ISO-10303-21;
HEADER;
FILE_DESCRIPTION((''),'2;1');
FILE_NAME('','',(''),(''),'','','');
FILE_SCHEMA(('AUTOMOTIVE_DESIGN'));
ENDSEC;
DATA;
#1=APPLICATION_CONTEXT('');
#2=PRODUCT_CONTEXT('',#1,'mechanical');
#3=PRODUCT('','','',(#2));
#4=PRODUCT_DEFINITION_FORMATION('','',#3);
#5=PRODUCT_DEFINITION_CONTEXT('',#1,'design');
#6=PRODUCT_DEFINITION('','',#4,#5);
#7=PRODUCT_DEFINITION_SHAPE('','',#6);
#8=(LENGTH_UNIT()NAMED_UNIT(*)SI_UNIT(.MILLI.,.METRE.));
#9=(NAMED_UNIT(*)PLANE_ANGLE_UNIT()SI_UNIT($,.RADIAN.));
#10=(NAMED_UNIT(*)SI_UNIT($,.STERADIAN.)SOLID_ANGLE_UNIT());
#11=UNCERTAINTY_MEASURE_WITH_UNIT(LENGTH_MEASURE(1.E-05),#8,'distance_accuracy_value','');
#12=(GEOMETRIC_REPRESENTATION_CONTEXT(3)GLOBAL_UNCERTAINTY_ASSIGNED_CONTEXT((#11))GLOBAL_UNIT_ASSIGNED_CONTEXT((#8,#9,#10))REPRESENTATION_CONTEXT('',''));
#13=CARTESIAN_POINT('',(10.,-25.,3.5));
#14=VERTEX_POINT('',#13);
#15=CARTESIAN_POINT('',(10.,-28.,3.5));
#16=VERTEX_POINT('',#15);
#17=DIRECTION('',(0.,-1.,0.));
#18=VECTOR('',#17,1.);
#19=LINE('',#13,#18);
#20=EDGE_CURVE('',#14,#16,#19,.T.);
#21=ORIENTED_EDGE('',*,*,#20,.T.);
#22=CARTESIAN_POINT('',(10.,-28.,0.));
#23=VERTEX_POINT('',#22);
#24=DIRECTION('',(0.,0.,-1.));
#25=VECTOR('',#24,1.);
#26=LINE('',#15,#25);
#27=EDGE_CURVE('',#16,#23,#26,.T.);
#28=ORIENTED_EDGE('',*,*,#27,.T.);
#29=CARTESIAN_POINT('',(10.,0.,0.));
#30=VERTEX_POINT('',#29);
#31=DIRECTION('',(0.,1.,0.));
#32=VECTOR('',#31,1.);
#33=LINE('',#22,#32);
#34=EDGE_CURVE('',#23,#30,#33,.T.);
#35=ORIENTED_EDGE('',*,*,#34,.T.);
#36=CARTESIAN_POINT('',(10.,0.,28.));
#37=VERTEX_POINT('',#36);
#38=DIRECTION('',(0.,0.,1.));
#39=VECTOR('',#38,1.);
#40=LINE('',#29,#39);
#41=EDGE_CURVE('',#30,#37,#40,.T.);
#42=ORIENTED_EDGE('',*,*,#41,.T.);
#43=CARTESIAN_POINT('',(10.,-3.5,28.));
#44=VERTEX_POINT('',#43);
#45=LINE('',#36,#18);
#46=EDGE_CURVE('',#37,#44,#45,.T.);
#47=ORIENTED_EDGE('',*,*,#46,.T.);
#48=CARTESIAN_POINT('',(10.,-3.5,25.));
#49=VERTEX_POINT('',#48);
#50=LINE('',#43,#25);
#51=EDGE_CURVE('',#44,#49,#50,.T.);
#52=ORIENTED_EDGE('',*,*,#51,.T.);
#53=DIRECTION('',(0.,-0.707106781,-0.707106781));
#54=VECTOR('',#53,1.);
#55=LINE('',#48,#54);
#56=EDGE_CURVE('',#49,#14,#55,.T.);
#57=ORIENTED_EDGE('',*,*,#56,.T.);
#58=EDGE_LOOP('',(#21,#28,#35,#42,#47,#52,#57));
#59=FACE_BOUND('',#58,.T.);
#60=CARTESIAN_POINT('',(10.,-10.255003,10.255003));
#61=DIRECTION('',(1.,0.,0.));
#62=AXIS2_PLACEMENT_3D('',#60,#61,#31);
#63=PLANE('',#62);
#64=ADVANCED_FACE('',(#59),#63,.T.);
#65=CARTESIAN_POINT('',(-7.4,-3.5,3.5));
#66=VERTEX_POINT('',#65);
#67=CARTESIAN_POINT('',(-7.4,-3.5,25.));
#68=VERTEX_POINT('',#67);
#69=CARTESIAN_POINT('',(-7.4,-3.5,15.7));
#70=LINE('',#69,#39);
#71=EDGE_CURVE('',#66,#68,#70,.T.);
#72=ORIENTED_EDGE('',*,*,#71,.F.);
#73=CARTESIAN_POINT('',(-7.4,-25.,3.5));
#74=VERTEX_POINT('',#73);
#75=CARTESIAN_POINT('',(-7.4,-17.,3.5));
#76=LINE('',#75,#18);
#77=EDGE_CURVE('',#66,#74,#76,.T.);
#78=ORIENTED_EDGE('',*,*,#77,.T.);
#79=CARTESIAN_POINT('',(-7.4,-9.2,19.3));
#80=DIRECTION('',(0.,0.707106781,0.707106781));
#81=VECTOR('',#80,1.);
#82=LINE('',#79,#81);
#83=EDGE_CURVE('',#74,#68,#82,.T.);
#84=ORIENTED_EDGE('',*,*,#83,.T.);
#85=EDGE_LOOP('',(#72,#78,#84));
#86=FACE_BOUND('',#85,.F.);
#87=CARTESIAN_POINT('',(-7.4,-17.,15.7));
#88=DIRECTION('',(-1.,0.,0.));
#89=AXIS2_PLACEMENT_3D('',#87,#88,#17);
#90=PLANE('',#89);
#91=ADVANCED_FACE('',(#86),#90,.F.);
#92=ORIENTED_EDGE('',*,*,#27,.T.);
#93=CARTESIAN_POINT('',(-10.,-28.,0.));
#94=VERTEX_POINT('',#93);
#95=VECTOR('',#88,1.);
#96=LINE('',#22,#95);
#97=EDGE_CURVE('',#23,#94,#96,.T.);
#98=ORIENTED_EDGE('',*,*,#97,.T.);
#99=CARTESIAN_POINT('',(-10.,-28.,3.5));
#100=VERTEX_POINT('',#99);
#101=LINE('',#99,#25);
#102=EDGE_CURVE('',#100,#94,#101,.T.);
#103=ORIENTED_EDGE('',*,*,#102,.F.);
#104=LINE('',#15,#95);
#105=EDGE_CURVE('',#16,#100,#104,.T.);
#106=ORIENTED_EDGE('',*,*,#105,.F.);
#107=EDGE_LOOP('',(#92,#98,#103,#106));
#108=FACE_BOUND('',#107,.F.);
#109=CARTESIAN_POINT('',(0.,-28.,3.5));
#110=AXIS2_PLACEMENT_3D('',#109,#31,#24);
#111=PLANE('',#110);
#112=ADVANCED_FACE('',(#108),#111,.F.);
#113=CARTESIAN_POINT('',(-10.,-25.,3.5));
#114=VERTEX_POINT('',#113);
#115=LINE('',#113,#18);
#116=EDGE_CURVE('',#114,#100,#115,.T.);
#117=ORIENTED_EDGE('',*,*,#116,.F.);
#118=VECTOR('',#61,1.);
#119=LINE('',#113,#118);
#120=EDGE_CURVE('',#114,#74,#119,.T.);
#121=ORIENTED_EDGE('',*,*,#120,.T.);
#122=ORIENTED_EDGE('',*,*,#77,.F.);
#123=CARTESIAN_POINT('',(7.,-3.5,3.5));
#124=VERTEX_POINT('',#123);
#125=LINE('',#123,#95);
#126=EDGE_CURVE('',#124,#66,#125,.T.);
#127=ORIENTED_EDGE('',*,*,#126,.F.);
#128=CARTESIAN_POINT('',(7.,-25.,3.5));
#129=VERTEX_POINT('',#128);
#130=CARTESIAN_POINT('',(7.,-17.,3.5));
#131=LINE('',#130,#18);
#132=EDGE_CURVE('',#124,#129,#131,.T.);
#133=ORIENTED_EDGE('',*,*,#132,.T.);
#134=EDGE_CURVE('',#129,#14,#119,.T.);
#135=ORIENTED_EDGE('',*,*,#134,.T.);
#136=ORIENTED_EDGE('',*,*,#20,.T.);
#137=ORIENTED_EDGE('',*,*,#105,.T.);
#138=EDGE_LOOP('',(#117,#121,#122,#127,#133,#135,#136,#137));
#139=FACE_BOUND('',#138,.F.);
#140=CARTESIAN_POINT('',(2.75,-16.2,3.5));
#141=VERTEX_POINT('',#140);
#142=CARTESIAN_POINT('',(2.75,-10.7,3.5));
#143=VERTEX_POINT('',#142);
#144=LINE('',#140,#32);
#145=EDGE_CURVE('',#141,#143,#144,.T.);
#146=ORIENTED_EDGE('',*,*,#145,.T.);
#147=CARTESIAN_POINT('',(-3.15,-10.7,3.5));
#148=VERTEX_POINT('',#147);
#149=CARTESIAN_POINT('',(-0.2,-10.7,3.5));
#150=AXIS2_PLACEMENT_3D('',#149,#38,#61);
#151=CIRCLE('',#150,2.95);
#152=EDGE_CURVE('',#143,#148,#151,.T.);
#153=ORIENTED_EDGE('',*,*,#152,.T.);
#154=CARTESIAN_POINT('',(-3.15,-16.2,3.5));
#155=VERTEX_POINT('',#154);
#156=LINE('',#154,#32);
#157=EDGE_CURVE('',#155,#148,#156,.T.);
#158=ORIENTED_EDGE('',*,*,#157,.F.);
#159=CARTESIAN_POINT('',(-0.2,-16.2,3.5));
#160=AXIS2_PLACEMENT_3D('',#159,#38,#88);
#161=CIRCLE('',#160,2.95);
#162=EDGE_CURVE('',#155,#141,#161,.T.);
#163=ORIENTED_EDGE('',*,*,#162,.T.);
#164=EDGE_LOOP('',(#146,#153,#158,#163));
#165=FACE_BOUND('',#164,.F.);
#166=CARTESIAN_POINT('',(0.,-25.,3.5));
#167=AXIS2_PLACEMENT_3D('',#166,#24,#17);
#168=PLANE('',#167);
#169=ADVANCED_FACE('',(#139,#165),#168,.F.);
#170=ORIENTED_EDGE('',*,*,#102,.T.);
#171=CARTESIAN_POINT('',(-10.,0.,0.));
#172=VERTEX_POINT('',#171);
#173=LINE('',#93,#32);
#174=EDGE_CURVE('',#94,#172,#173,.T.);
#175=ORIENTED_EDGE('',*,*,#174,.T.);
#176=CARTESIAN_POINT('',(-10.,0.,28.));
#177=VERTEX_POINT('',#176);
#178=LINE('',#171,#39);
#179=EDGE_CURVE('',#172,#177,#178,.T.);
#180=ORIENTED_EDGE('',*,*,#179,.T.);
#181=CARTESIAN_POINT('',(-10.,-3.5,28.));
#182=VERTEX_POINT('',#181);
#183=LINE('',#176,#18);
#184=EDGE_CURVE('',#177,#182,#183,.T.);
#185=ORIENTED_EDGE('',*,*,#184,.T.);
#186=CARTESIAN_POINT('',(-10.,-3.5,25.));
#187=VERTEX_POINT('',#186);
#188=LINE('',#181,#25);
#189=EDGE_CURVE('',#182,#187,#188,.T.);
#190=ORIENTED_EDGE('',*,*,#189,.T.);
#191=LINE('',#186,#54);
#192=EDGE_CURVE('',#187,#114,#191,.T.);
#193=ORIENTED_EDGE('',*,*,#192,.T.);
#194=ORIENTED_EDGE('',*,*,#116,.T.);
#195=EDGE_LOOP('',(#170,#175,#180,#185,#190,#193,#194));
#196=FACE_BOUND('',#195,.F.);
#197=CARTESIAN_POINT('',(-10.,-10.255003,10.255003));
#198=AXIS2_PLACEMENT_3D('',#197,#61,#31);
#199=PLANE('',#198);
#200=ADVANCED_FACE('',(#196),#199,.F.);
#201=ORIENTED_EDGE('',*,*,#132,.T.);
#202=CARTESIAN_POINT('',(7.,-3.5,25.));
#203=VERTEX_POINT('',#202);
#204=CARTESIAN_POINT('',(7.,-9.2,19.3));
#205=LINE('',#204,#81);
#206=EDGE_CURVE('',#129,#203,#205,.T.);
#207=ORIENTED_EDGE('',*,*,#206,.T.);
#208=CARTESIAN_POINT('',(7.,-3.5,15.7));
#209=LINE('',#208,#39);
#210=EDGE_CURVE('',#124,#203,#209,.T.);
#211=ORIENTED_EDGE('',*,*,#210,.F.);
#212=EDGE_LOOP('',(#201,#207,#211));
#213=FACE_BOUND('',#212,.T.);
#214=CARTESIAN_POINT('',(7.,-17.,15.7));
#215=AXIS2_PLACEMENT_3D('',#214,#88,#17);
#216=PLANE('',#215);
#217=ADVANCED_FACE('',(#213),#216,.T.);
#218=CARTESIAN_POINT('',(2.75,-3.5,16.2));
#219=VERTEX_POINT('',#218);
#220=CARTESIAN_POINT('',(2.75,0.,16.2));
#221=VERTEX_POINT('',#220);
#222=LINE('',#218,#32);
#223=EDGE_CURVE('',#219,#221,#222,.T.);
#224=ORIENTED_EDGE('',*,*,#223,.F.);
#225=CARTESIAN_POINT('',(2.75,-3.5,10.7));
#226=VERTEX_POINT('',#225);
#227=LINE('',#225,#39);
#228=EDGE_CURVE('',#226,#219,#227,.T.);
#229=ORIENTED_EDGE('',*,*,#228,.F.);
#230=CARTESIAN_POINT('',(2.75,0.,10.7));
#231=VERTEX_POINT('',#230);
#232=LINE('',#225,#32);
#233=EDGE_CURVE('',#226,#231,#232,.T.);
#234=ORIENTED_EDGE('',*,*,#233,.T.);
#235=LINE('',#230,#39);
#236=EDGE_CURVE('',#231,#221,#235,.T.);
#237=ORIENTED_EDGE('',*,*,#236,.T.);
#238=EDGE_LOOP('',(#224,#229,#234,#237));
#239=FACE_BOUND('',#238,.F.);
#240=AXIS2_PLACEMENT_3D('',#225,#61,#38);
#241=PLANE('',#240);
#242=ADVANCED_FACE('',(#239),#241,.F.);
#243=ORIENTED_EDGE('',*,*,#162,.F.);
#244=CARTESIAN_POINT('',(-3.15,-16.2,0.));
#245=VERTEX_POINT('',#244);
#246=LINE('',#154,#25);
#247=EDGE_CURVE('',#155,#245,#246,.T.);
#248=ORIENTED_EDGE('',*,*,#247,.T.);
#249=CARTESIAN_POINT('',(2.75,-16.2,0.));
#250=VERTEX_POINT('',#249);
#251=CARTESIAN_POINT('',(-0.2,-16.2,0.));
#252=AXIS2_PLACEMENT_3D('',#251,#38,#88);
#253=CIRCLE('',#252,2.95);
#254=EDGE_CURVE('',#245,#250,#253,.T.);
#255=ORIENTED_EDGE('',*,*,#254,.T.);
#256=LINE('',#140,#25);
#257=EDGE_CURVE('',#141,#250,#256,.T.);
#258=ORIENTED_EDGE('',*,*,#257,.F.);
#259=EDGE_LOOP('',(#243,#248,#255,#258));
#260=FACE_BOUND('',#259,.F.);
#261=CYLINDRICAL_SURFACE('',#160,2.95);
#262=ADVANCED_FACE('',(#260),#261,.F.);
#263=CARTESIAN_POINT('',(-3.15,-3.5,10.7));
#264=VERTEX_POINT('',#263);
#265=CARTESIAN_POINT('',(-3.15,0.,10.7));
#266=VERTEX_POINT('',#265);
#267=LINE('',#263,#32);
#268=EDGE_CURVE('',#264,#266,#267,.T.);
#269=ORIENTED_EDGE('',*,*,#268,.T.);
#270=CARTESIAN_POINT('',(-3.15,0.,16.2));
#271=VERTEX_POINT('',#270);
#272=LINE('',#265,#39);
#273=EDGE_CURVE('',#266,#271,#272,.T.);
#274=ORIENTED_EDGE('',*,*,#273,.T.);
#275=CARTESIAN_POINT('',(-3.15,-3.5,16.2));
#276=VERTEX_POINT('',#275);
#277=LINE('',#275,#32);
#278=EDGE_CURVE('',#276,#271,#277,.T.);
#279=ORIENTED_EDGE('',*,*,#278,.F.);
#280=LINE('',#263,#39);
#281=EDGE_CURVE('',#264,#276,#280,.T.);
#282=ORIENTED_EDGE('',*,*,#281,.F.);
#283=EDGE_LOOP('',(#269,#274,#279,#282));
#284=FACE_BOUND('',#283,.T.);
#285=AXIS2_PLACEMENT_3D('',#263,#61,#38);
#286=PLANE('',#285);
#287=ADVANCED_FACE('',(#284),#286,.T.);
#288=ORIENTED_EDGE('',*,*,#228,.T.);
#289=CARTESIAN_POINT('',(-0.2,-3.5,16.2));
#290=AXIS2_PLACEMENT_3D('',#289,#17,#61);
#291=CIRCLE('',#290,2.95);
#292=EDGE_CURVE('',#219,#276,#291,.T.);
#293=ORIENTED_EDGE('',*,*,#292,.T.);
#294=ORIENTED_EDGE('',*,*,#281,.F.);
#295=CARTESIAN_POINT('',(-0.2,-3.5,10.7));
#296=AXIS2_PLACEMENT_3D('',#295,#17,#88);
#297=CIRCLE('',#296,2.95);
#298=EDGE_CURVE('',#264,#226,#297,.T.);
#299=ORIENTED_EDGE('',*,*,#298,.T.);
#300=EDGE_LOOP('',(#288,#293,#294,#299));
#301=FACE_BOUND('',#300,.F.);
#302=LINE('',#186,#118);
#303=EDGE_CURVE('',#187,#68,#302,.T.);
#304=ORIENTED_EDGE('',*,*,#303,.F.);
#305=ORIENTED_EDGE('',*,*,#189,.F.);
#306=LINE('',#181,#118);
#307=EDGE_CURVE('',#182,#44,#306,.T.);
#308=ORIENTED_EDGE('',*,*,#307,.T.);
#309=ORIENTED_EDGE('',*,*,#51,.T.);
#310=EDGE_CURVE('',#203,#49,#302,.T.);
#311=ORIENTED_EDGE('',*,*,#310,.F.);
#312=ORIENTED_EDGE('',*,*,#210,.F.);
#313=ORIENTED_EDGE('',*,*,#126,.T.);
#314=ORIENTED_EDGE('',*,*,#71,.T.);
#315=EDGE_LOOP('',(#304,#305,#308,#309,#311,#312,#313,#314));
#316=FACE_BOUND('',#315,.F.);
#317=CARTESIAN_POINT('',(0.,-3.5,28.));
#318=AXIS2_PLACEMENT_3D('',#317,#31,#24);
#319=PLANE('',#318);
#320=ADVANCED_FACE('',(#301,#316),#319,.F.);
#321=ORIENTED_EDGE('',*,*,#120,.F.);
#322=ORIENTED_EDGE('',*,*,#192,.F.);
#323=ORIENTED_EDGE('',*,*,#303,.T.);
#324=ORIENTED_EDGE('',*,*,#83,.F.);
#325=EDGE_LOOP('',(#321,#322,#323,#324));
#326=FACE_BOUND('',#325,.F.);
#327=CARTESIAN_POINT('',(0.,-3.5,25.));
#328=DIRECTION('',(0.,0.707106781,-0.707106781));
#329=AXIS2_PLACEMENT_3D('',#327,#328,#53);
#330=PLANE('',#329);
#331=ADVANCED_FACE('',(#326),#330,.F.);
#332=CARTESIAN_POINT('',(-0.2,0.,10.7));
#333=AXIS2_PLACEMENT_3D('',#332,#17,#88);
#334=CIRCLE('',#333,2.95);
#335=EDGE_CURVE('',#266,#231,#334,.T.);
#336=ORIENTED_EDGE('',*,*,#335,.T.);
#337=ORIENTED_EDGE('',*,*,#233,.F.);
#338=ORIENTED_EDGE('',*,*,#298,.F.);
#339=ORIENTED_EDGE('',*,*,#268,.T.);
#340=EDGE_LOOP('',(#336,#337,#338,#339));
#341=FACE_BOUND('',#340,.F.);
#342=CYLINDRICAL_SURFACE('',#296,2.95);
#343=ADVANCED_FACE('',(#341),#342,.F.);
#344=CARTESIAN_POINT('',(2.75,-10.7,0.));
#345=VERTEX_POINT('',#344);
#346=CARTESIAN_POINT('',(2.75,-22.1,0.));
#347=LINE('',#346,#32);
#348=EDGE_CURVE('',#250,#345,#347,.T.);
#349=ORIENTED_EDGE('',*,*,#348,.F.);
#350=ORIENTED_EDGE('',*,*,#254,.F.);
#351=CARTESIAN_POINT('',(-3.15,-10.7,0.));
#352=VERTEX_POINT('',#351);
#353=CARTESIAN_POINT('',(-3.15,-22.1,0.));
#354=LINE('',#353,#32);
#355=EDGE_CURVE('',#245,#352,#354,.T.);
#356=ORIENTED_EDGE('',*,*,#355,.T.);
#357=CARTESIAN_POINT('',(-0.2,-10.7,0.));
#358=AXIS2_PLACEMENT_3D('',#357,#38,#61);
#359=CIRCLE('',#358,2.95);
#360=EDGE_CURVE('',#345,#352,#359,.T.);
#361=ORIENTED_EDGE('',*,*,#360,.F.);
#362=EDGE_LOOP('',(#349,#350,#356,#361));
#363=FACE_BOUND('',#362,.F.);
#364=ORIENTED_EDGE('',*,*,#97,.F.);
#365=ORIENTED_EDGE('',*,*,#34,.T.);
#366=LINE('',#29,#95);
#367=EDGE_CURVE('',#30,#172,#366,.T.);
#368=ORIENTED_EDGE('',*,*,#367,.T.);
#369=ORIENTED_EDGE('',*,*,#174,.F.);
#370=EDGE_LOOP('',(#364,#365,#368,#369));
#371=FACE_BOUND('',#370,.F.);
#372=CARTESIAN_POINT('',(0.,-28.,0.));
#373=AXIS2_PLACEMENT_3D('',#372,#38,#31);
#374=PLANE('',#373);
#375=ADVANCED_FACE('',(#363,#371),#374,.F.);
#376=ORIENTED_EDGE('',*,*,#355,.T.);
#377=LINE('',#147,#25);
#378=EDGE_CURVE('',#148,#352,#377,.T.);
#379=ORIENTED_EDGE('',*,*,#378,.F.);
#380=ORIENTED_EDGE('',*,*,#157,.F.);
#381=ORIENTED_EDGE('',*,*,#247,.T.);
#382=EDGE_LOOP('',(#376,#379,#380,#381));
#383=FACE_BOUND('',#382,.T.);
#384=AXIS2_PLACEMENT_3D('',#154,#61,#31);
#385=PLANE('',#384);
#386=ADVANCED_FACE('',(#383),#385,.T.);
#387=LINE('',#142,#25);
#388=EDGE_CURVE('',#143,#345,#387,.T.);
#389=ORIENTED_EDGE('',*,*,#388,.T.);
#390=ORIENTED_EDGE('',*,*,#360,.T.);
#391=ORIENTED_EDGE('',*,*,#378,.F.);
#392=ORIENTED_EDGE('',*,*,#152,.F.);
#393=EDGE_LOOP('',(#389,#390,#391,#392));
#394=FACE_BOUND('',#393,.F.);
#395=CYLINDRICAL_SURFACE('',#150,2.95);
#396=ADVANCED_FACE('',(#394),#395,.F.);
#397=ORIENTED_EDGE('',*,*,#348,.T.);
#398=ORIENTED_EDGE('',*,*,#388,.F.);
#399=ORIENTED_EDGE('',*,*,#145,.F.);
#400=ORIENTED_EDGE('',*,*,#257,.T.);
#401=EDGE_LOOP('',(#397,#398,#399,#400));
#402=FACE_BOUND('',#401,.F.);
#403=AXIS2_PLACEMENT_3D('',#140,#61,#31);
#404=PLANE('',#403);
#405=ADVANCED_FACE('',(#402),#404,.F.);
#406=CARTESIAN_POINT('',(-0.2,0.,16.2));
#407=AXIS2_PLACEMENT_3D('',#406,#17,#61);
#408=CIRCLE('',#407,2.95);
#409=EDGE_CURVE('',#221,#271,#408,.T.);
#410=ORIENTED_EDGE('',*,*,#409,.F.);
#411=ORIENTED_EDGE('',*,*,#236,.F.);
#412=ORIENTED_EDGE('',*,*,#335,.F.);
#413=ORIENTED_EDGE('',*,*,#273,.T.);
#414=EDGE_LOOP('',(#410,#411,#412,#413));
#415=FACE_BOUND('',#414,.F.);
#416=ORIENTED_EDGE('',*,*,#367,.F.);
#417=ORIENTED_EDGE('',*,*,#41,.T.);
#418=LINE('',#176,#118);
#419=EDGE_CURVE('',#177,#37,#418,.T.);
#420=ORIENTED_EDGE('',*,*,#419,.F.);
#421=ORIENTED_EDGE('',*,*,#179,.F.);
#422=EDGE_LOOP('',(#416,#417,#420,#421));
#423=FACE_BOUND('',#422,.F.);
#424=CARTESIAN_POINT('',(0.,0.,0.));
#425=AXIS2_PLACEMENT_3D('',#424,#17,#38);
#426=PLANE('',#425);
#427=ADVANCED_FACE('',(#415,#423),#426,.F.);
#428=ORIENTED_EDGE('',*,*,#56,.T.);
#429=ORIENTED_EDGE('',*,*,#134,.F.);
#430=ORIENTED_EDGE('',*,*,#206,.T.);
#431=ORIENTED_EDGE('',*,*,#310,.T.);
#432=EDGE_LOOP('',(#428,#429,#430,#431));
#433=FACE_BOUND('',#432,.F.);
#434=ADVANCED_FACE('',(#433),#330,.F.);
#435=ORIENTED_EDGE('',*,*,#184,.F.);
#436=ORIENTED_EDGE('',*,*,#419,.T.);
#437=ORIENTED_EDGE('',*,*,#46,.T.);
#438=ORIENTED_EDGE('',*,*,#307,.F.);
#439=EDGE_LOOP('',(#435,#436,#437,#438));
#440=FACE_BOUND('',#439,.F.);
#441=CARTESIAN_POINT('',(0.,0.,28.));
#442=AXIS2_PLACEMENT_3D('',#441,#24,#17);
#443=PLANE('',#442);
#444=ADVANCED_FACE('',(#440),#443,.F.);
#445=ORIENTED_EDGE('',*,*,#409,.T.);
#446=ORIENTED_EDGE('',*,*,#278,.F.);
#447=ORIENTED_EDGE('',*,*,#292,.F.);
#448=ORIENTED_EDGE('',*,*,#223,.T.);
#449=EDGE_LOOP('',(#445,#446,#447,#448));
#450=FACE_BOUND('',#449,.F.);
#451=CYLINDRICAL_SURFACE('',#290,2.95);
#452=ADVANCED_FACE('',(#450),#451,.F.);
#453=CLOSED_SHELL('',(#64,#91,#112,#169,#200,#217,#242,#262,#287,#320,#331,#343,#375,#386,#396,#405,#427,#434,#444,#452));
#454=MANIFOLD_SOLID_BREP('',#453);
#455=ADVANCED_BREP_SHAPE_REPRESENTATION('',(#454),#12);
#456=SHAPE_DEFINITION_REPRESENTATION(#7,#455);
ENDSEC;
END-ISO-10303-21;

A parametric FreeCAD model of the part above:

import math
import FreeCAD as App
import Part
import Sketcher

V = App.Vector
Q = App.Units.Quantity


def add_polygon(sketch, points):
    """Adds a closed chain of lines whose ends are joined by coincident constraints."""
    first, n = sketch.GeometryCount, len(points)
    for a, b in zip(points, points[1:] + points[:1]):
        sketch.addGeometry(Part.LineSegment(App.Vector(*a, 0), App.Vector(*b, 0)), False)
    for i in range(n):
        sketch.addConstraint(Sketcher.Constraint("Coincident", first + i, 2, first + (i + 1) % n, 1))

doc = App.newDocument("Part")
body = doc.addObject("PartDesign::Body", "Body")

sketch1 = body.newObject("Sketcher::SketchObject", "Sketch")
sketch1.AttachmentSupport = (doc.getObject("XY_Plane"), [""])
sketch1.MapMode = "FlatFace"
add_polygon(sketch1, [(0, 28), (0, 0), (28, 0), (28, 3.5), (25, 3.5), (3.5, 25), (3.5, 28)])
sketch1.addConstraint([
    Sketcher.Constraint("Vertical", 0),
    Sketcher.Constraint("Horizontal", 1),
    Sketcher.Constraint("Vertical", 2),
    Sketcher.Constraint("Horizontal", 3),
    Sketcher.Constraint("Vertical", 5),
    Sketcher.Constraint("Horizontal", 6),
    Sketcher.Constraint("Coincident", 0, 2, -1, 1),
    Sketcher.Constraint("Equal", 1, 0),
    Sketcher.Constraint("Equal", 6, 2),
    Sketcher.Constraint("Equal", 3, 5),
    Sketcher.Constraint("DistanceX", 1, 1, 1, 2, Q("28 mm")),
    Sketcher.Constraint("DistanceX", 3, 2, 3, 1, Q("3 mm")),
    Sketcher.Constraint("DistanceX", 6, 2, 6, 1, Q("3.5 mm")),
])
pad1 = body.newObject("PartDesign::Pad", "Pad")
pad1.Profile = sketch1
pad1.Length = 20
pad1.Midplane = True

sketch2 = body.newObject("Sketcher::SketchObject", "Sketch001")
sketch2.AttachmentSupport = (doc.getObject("XY_Plane"), [""])
sketch2.MapMode = "FlatFace"
sketch2.AttachmentOffset = App.Placement(V(0, 0, -7), App.Rotation())
add_polygon(sketch2, [(4, 28), (4, 4), (30, 4), (30, 28)])
sketch2.addConstraint([
    Sketcher.Constraint("Vertical", 0),
    Sketcher.Constraint("Horizontal", 1),
    Sketcher.Constraint("Vertical", 2),
    Sketcher.Constraint("Horizontal", 3),
    Sketcher.Constraint("DistanceX", 1, 1, 1, 2, Q("27 mm")),
    Sketcher.Constraint("DistanceY", 0, 2, 0, 1, Q("24.4 mm")),
    Sketcher.Constraint("DistanceX", -1, 1, 0, 2, Q("3.5 mm")),
    Sketcher.Constraint("DistanceY", -1, 1, 0, 2, Q("3.5 mm")),
])
pocket1 = body.newObject("PartDesign::Pocket", "Pocket")
pocket1.Profile = sketch2
pocket1.Length = 14.4
pocket1.Reversed = True

sketch3 = body.newObject("Sketcher::SketchObject", "Sketch002")
sketch3.AttachmentSupport = (doc.getObject("YZ_Plane"), [""])
sketch3.MapMode = "FlatFace"
sketch3.AttachmentOffset = App.Placement(V(0, 0, 3.5), App.Rotation())
sketch3.addGeometry([
    Part.ArcOfCircle(Part.Circle(V(10.7, 0.2, 0), V(0, 0, 1), 3), math.radians(90), math.radians(270)),
    Part.LineSegment(V(10.7, -2.8, 0), V(16.2, -2.8, 0)),
    Part.ArcOfCircle(Part.Circle(V(16.2, 0.2, 0), V(0, 0, 1), 3), math.radians(-90), math.radians(90)),
    Part.LineSegment(V(16.2, 3.1, 0), V(10.7, 3.1, 0)),
], False)
sketch3.addConstraint([
    Sketcher.Constraint("Tangent", 0, 2, 1, 1),
    Sketcher.Constraint("Tangent", 1, 2, 2, 1),
    Sketcher.Constraint("Tangent", 2, 2, 3, 1),
    Sketcher.Constraint("Tangent", 3, 2, 0, 1),
    Sketcher.Constraint("Horizontal", 1),
    Sketcher.Constraint("Horizontal", 3),
    Sketcher.Constraint("Radius", 0, Q("2.95 mm")),
    Sketcher.Constraint("DistanceX", 1, 1, 1, 2, Q("5.5 mm")),
    Sketcher.Constraint("DistanceX", -1, 1, 0, 3, Q("10.7 mm")),
    Sketcher.Constraint("DistanceY", -1, 1, 0, 3, Q("0.2 mm")),
])
pocket2 = body.newObject("PartDesign::Pocket", "Pocket001")
pocket2.Profile = sketch3
pocket2.Length = 3.5

sketch4 = body.newObject("Sketcher::SketchObject", "Sketch003")
sketch4.AttachmentSupport = (doc.getObject("XZ_Plane"), [""])
sketch4.MapMode = "FlatFace"
sketch4.AttachmentOffset = App.Placement(V(0, 0, -3.5), App.Rotation())
sketch4.addGeometry([
    Part.ArcOfCircle(Part.Circle(V(16.2, 0.2, 0), V(0, 0, 1), 3), math.radians(-90), math.radians(90)),
    Part.LineSegment(V(16.2, -2.8, 0), V(10.7, -2.8, 0)),
    Part.ArcOfCircle(Part.Circle(V(10.7, 0.2, 0), V(0, 0, 1), 3), math.radians(90), math.radians(270)),
    Part.LineSegment(V(10.7, 3.1, 0), V(16.2, 3.1, 0)),
], False)
sketch4.addConstraint([
    Sketcher.Constraint("Tangent", 0, 1, 1, 1),
    Sketcher.Constraint("Tangent", 1, 2, 2, 2),
    Sketcher.Constraint("Tangent", 2, 1, 3, 1),
    Sketcher.Constraint("Tangent", 3, 2, 0, 2),
    Sketcher.Constraint("Horizontal", 1),
    Sketcher.Constraint("Horizontal", 3),
    Sketcher.Constraint("Radius", 0, Q("2.95 mm")),
    Sketcher.Constraint("DistanceX", 1, 2, 1, 1, Q("5.5 mm")),
    Sketcher.Constraint("DistanceX", -1, 1, 0, 3, Q("16.2 mm")),
    Sketcher.Constraint("DistanceY", -1, 1, 0, 3, Q("0.2 mm")),
])
pocket3 = body.newObject("PartDesign::Pocket", "Pocket002")
pocket3.Profile = sketch4
pocket3.Length = 4
pocket3.Reversed = True
body2 = doc.addObject("PartDesign::Body", "Body001")
doc.recompute()

body.Placement = App.Placement(V(0, 0, 0), App.Rotation(V(1, 0, 0), 90))
boolean = body2.newObject("PartDesign::Boolean", "Boolean")
boolean.Type = "Fuse"
boolean.addObjects([body])
body3 = doc.addObject("PartDesign::Body", "Body002")
doc.recompute()

body2.Placement = App.Placement(V(0, 0, 0), App.Rotation(V(0, 0, 1), 270))
boolean2 = body3.newObject("PartDesign::Boolean", "Boolean001")
boolean2.Type = "Fuse"
boolean2.addObjects([body2])

doc.recompute()
